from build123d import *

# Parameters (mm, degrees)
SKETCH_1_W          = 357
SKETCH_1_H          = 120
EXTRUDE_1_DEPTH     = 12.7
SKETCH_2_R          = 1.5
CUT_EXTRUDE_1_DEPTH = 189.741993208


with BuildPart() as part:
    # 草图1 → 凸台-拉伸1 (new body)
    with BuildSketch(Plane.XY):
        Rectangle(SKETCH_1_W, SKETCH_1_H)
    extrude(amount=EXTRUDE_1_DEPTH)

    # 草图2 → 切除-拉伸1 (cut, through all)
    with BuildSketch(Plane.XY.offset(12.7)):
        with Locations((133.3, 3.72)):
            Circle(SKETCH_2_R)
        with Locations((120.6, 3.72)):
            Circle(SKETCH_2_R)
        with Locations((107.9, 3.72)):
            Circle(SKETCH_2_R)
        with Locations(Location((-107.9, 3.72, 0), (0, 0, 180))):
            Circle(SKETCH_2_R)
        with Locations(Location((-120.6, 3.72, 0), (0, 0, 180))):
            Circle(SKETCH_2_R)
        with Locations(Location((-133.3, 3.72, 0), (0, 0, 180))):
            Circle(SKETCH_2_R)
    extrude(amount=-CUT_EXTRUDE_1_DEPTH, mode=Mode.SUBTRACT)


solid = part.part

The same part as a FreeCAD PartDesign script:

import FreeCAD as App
import Part
import Sketcher
from FreeCAD import Vector

doc = App.newDocument("Part")
body = doc.addObject("PartDesign::Body", "Body")

# Sketch on XY plane
sketch1 = body.newObject("Sketcher::SketchObject", "Sketch")
sketch1.AttachmentSupport = (doc.getObject("XY_Plane"), [""])
sketch1.MapMode = "FlatFace"
sketch1.addGeometry([
    Part.LineSegment(Vector(-178, 60, 0), Vector(-178, -60, 0)),
    Part.LineSegment(Vector(-178, -60, 0), Vector(178, -60, 0)),
    Part.LineSegment(Vector(178, -60, 0), Vector(178, 60, 0)),
    Part.LineSegment(Vector(178, 60, 0), Vector(-178, 60, 0)),
], False)
sketch1.addConstraint([
    Sketcher.Constraint("Coincident", 0, 2, 1, 1),
    Sketcher.Constraint("Coincident", 1, 2, 2, 1),
    Sketcher.Constraint("Coincident", 2, 2, 3, 1),
    Sketcher.Constraint("Coincident", 3, 2, 0, 1),
    Sketcher.Constraint("Vertical", 0),
    Sketcher.Constraint("Horizontal", 1),
    Sketcher.Constraint("Vertical", 2),
    Sketcher.Constraint("Horizontal", 3),
    Sketcher.Constraint("Symmetric", 0, 2, 2, 2, -1, 1),
    Sketcher.Constraint("DistanceX", 1, 1, 1, 2, 357.0),
    Sketcher.Constraint("DistanceY", 0, 2, 0, 1, 120.0),
])
pad1 = body.newObject("PartDesign::Pad", "Pad")
pad1.Profile = sketch1
pad1.Length = 12.7

# Sketch on XY plane
sketch2 = body.newObject("Sketcher::SketchObject", "Sketch001")
sketch2.AttachmentSupport = (doc.getObject("XY_Plane"), [""])
sketch2.MapMode = "FlatFace"
sketch2.AttachmentOffset = App.Placement(Vector(0, 0, 12.7), App.Rotation())
sketch2.addGeometry([
    Part.Circle(Vector(133.3, 3.7, 0), Vector(0, 0, 1), 1.5),  # 0
    Part.Circle(Vector(120.6, 3.7, 0), Vector(0, 0, 1), 1.5),  # 1
    Part.Circle(Vector(107.9, 3.7, 0), Vector(0, 0, 1), 1.5),  # 2
    Part.Circle(Vector(-107.9, 3.7, 0), Vector(0, 0, 1), 1.5),  # 3
    Part.Circle(Vector(-120.6, 3.7, 0), Vector(0, 0, 1), 1.5),  # 4
    Part.Circle(Vector(-133.3, 3.7, 0), Vector(0, 0, 1), 1.5),  # 5
], False)
sketch2.addConstraint([
    Sketcher.Constraint("Equal", 0, 1),
    Sketcher.Constraint("Equal", 1, 2),
    Sketcher.Constraint("Equal", 2, 3),
    Sketcher.Constraint("Equal", 3, 4),
    Sketcher.Constraint("Equal", 4, 5),
    Sketcher.Constraint("Symmetric", 2, 3, 3, 3, -2),
    Sketcher.Constraint("Symmetric", 1, 3, 4, 3, -2),
    Sketcher.Constraint("Symmetric", 0, 3, 5, 3, -2),
    Sketcher.Constraint("Horizontal", 0, 3, 1, 3),
    Sketcher.Constraint("Horizontal", 1, 3, 2, 3),
    Sketcher.Constraint("Diameter", 0, 3.0),
    Sketcher.Constraint("DistanceX", -1, 1, 0, 3, 133.3),
    Sketcher.Constraint("DistanceX", -1, 1, 1, 3, 120.6),
    Sketcher.Constraint("DistanceX", -1, 1, 2, 3, 107.9),
    Sketcher.Constraint("DistanceY", -1, 1, 0, 3, 3.72),
])
pocket1 = body.newObject("PartDesign::Pocket", "Pocket")
pocket1.Profile = sketch2
pocket1.Type = "ThroughAll"

doc.recompute()
